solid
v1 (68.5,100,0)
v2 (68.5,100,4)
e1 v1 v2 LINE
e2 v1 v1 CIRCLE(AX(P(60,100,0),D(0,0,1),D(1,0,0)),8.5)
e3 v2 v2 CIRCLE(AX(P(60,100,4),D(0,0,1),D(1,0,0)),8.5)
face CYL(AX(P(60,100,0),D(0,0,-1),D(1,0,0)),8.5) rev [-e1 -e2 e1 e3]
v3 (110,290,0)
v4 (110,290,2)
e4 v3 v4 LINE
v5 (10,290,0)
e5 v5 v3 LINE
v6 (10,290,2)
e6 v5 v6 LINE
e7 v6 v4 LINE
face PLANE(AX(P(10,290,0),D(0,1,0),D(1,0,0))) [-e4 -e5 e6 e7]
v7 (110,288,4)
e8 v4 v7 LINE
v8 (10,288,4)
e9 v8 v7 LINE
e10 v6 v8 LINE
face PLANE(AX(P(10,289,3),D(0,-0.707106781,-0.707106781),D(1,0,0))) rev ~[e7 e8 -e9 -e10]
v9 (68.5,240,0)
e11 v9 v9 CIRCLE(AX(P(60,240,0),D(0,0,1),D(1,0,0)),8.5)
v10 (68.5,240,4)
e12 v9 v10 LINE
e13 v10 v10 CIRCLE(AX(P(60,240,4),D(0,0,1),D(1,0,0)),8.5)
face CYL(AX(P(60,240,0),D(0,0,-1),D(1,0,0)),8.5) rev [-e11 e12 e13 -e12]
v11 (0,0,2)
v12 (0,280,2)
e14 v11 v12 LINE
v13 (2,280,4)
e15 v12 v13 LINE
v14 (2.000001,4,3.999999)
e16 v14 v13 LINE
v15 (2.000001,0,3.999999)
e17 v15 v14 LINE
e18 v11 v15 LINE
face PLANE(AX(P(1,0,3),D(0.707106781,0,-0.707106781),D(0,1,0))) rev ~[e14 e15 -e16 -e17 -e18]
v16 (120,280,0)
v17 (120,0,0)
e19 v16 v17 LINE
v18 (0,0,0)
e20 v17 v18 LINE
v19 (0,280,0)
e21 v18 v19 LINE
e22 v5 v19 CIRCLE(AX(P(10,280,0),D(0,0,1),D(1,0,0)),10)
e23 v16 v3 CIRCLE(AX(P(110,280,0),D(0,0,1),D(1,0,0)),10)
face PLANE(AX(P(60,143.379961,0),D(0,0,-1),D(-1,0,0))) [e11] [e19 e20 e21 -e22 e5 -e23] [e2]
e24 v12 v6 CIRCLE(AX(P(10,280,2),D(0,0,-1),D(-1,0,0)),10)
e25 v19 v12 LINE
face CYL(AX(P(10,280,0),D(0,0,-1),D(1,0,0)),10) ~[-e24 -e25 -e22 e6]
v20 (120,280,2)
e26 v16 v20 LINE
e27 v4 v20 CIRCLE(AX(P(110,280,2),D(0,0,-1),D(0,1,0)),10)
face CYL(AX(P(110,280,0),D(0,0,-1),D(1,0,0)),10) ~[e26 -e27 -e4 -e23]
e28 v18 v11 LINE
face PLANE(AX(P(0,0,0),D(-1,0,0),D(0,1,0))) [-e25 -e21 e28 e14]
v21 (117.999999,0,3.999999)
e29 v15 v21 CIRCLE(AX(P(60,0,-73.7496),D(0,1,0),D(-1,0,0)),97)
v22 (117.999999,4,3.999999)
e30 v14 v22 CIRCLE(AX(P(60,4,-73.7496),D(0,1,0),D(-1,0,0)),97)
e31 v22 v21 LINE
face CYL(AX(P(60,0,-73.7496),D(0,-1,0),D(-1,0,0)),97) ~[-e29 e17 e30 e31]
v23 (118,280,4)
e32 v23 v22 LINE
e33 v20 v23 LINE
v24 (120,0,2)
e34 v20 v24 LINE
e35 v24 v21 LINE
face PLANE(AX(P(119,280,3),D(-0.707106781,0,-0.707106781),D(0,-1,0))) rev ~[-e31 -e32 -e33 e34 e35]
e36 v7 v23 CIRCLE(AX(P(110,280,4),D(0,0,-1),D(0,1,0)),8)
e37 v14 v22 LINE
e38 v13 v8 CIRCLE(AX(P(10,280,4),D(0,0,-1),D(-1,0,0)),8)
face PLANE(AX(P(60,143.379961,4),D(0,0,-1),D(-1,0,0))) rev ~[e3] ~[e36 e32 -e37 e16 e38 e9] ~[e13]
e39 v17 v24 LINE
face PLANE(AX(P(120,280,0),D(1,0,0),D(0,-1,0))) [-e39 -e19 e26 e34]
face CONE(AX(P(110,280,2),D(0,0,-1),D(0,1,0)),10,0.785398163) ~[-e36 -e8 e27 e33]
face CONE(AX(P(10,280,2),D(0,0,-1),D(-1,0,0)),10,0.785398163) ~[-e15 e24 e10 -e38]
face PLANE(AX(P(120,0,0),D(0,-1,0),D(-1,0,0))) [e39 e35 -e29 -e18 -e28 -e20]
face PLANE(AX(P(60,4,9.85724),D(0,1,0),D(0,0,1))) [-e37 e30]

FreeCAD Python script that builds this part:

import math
import FreeCAD as App
import Part
import Sketcher
from FreeCAD import Vector
Q = App.Units.Quantity


def edges_at(feature, points):
    """Names of the edges that pass closest to the given points."""
    edges = feature.Shape.Edges
    near = lambda p: min(range(len(edges)), key=lambda i: edges[i].distToShape(Part.Vertex(*p))[0])
    return sorted({f"Edge{near(p) + 1}" for p in points})

doc = App.newDocument("Part")
body = doc.addObject("PartDesign::Body", "Body")

sketch1 = doc.addObject("Sketcher::SketchObject", "Sketch")
body.addObject(sketch1)
sketch1.AttachmentSupport = (doc.XY_Plane, [""])
sketch1.MapMode = "FlatFace"
sketch1.addGeometry(Part.LineSegment(Vector(120, 0, 0), Vector(120, 280, 0)), False)
sketch1.addGeometry(Part.ArcOfCircle(Part.Circle(Vector(110, 280, 0), Vector(0, 0, 1), 10), math.radians(0), math.radians(90)), False)
sketch1.addGeometry(Part.LineSegment(Vector(110, 290, 0), Vector(10, 290, 0)), False)
sketch1.addGeometry(Part.ArcOfCircle(Part.Circle(Vector(10, 280, 0), Vector(0, 0, 1), 10), math.radians(90), math.radians(180)), False)
sketch1.addGeometry(Part.LineSegment(Vector(0, 280, 0), Vector(0, 0, 0)), False)
sketch1.addGeometry(Part.LineSegment(Vector(0, 0, 0), Vector(120, 0, 0)), False)
sketch1.addGeometry(Part.Circle(Vector(60, 100, 0), Vector(0, 0, 1), 8), False)
sketch1.addGeometry(Part.Circle(Vector(60, 240, 0), Vector(0, 0, 1), 8), False)
sketch1.addConstraint(Sketcher.Constraint("Tangent", 0, 2, 1, 1))
sketch1.addConstraint(Sketcher.Constraint("Tangent", 1, 2, 2, 1))
sketch1.addConstraint(Sketcher.Constraint("Tangent", 2, 2, 3, 1))
sketch1.addConstraint(Sketcher.Constraint("Tangent", 3, 2, 4, 1))
sketch1.addConstraint(Sketcher.Constraint("Coincident", 4, 2, 5, 1))
sketch1.addConstraint(Sketcher.Constraint("Coincident", 5, 2, 0, 1))
sketch1.addConstraint(Sketcher.Constraint("Vertical", 0))
sketch1.addConstraint(Sketcher.Constraint("Horizontal", 2))
sketch1.addConstraint(Sketcher.Constraint("Vertical", 4))
sketch1.addConstraint(Sketcher.Constraint("Horizontal", 5))
sketch1.addConstraint(Sketcher.Constraint("Coincident", 4, 2, -1, 1))
sketch1.addConstraint(Sketcher.Constraint("Equal", 1, 3))
sketch1.addConstraint(Sketcher.Constraint("Equal", 6, 7))
sketch1.addConstraint(Sketcher.Constraint("Vertical", 6, 3, 7, 3))
sketch1.addConstraint(Sketcher.Constraint("Diameter", 6, Q("17 mm")))
sketch1.addConstraint(Sketcher.Constraint("Radius", 1, Q("10 mm")))
sketch1.addConstraint(Sketcher.Constraint("DistanceX", 2, 2, 2, 1, Q("100 mm")))
sketch1.addConstraint(Sketcher.Constraint("DistanceY", 0, 1, 0, 2, Q("280 mm")))
sketch1.addConstraint(Sketcher.Constraint("DistanceX", -1, 1, 6, 3, Q("60 mm")))
sketch1.addConstraint(Sketcher.Constraint("DistanceY", -1, 1, 6, 3, Q("100 mm")))
sketch1.addConstraint(Sketcher.Constraint("DistanceY", -1, 1, 7, 3, Q("240 mm")))
pad1 = doc.addObject("PartDesign::Pad", "Pad")
body.addObject(pad1)
pad1.Profile = sketch1
pad1.Length = 4
doc.recompute()

chamfer = doc.addObject("PartDesign::Chamfer", "Chamfer")
body.addObject(chamfer)
chamfer.Base = (pad1, edges_at(pad1, [
    (0, 140, 4),
    (2.929, 287.071, 4),
    (60, 290, 4),
    (117.071, 287.071, 4),
    (120, 140, 4),
]))
chamfer.Size = 2

sketch2 = doc.addObject("Sketcher::SketchObject", "Sketch001")
body.addObject(sketch2)
sketch2.AttachmentSupport = (doc.XZ_Plane, [""])
sketch2.MapMode = "FlatFace"
sketch2.addGeometry(Part.ArcOfCircle(Part.Circle(Vector(60, -74, 0), Vector(0, 0, 1), 97), math.radians(53), math.radians(127)), False)
sketch2.addGeometry(Part.LineSegment(Vector(118, 4, 0), Vector(2, 4, 0)), False)
sketch2.addConstraint(Sketcher.Constraint("Coincident", 0, 1, 1, 1))
sketch2.addConstraint(Sketcher.Constraint("Coincident", 1, 2, 0, 2))
sketch2.addConstraint(Sketcher.Constraint("Horizontal", 1))
sketch2.addConstraint(Sketcher.Constraint("Radius", 0, Q("97 mm")))
sketch2.addConstraint(Sketcher.Constraint("DistanceX", 1, 2, 1, 1, Q("116 mm")))
sketch2.addConstraint(Sketcher.Constraint("DistanceX", -1, 1, 0, 3, Q("60 mm")))
sketch2.addConstraint(Sketcher.Constraint("DistanceY", -1, 1, 0, 1, Q("4 mm")))
pad2 = doc.addObject("PartDesign::Pad", "Pad001")
body.addObject(pad2)
pad2.Profile = sketch2
pad2.Length = 4
pad2.Reversed = True

doc.recompute()
